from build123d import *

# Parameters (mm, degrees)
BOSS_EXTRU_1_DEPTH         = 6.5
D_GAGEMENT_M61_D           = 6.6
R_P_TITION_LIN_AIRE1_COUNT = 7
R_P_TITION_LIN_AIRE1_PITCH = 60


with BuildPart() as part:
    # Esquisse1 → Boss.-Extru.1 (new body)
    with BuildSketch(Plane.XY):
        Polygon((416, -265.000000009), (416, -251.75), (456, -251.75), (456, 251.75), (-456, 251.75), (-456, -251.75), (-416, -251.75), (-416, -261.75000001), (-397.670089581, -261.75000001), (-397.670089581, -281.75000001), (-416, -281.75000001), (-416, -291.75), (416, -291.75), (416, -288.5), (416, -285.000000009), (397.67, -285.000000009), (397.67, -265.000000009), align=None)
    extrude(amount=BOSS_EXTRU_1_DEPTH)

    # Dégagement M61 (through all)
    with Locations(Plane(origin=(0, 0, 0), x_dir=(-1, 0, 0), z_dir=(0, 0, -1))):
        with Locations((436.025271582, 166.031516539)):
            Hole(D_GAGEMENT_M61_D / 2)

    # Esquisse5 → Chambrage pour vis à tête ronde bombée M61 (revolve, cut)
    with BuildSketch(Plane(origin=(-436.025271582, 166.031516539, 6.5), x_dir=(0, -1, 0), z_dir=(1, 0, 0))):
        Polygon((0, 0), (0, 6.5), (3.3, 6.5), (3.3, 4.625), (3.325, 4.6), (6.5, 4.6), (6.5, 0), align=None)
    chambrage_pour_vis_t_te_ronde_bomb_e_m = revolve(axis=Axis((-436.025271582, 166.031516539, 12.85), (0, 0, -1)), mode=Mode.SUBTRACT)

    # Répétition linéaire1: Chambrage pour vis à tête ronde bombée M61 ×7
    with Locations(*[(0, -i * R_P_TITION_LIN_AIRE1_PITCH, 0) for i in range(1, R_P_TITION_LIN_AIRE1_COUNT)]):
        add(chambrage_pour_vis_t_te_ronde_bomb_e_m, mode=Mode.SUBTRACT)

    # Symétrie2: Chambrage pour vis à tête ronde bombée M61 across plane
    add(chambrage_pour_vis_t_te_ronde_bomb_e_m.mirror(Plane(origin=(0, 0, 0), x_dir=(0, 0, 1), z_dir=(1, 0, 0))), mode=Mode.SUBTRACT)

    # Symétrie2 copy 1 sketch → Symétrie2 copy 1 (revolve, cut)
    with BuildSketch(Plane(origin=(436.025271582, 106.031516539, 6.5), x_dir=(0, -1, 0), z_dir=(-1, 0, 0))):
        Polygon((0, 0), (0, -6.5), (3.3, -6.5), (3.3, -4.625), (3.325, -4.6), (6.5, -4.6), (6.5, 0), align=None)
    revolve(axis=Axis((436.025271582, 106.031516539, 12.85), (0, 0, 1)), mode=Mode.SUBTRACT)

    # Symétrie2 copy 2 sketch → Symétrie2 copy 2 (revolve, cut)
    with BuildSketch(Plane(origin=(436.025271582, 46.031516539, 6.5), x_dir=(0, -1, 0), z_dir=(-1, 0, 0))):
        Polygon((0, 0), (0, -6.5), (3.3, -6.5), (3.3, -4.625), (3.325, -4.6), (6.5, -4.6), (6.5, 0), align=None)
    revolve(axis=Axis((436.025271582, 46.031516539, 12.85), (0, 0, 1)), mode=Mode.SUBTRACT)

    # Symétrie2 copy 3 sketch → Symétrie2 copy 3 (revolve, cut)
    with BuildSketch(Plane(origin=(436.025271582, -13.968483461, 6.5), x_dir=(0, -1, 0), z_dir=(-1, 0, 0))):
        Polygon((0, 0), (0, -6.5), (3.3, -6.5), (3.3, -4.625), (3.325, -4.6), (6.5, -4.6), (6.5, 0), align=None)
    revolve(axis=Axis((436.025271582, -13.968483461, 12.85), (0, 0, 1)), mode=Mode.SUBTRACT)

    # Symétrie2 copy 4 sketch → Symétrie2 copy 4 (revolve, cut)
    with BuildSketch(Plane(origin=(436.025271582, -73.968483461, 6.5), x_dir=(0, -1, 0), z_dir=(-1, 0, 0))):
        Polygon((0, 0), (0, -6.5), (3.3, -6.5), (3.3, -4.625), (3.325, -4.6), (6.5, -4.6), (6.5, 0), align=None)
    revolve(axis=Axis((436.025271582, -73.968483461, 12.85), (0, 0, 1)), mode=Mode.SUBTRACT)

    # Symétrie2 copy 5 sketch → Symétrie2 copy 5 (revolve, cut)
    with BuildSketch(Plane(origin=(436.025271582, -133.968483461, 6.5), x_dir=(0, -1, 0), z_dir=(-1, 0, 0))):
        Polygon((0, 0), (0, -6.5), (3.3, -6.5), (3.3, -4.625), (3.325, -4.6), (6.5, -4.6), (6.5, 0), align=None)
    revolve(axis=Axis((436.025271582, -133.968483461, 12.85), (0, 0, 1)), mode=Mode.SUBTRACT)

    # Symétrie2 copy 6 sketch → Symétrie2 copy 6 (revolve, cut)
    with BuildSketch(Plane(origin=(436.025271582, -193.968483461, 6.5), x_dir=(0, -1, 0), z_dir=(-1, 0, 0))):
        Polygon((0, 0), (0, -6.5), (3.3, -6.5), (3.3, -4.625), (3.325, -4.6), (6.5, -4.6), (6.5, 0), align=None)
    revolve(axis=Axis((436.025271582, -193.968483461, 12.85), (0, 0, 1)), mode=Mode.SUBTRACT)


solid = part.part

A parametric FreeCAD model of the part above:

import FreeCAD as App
import Part
import Sketcher
from FreeCAD import Vector
Q = App.Units.Quantity

doc = App.newDocument("Part")
body = doc.addObject("PartDesign::Body", "Body")

# Sketch on XY plane
sketch1 = body.newObject("Sketcher::SketchObject", "Sketch")
sketch1.AttachmentSupport = (doc.getObject("XY_Plane"), [""])
sketch1.MapMode = "FlatFace"
sketch1.addGeometry([
    Part.LineSegment(Vector(416, -265, 0), Vector(416, -252, 0)),  # 0
    Part.LineSegment(Vector(416, -252, 0), Vector(456, -252, 0)),  # 1
    Part.LineSegment(Vector(456, -252, 0), Vector(456, 252, 0)),  # 2
    Part.LineSegment(Vector(456, 252, 0), Vector(-456, 252, 0)),  # 3
    Part.LineSegment(Vector(-456, 252, 0), Vector(-456, -252, 0)),  # 4
    Part.LineSegment(Vector(-456, -252, 0), Vector(-416, -252, 0)),  # 5
    Part.LineSegment(Vector(-416, -252, 0), Vector(-416, -262, 0)),  # 6
    Part.LineSegment(Vector(-416, -262, 0), Vector(-398, -262, 0)),  # 7
    Part.LineSegment(Vector(-398, -262, 0), Vector(-398, -282, 0)),  # 8
    Part.LineSegment(Vector(-398, -282, 0), Vector(-416, -282, 0)),  # 9
    Part.LineSegment(Vector(-416, -282, 0), Vector(-416, -292, 0)),  # 10
    Part.LineSegment(Vector(-416, -292, 0), Vector(416, -292, 0)),  # 11
    Part.LineSegment(Vector(416, -292, 0), Vector(416, -285, 0)),  # 12
    Part.LineSegment(Vector(416, -285, 0), Vector(398, -285, 0)),  # 13
    Part.LineSegment(Vector(398, -285, 0), Vector(398, -265, 0)),  # 14
    Part.LineSegment(Vector(398, -265, 0), Vector(416, -265, 0)),  # 15
], False)
sketch1.addConstraint([
    Sketcher.Constraint("Coincident", 0, 2, 1, 1),
    Sketcher.Constraint("Coincident", 1, 2, 2, 1),
    Sketcher.Constraint("Coincident", 2, 2, 3, 1),
    Sketcher.Constraint("Coincident", 3, 2, 4, 1),
    Sketcher.Constraint("Coincident", 4, 2, 5, 1),
    Sketcher.Constraint("Coincident", 5, 2, 6, 1),
    Sketcher.Constraint("Coincident", 6, 2, 7, 1),
    Sketcher.Constraint("Coincident", 7, 2, 8, 1),
    Sketcher.Constraint("Coincident", 8, 2, 9, 1),
    Sketcher.Constraint("Coincident", 9, 2, 10, 1),
    Sketcher.Constraint("Coincident", 10, 2, 11, 1),
    Sketcher.Constraint("Coincident", 11, 2, 12, 1),
    Sketcher.Constraint("Coincident", 12, 2, 13, 1),
    Sketcher.Constraint("Coincident", 13, 2, 14, 1),
    Sketcher.Constraint("Coincident", 14, 2, 15, 1),
    Sketcher.Constraint("Coincident", 15, 2, 0, 1),
    Sketcher.Constraint("Vertical", 0),
    Sketcher.Constraint("Horizontal", 1),
    Sketcher.Constraint("Vertical", 2),
    Sketcher.Constraint("Horizontal", 3),
    Sketcher.Constraint("Vertical", 4),
    Sketcher.Constraint("Horizontal", 5),
    Sketcher.Constraint("Vertical", 6),
    Sketcher.Constraint("Horizontal", 7),
    Sketcher.Constraint("Vertical", 8),
    Sketcher.Constraint("Horizontal", 9),
    Sketcher.Constraint("Vertical", 10),
    Sketcher.Constraint("Horizontal", 11),
    Sketcher.Constraint("Vertical", 12),
    Sketcher.Constraint("Horizontal", 13),
    Sketcher.Constraint("Vertical", 14),
    Sketcher.Constraint("Horizontal", 15),
    Sketcher.Constraint("Symmetric", 1, 2, 3, 2, -1, 1),
    Sketcher.Constraint("Symmetric", 0, 2, 5, 2, -2),
    Sketcher.Constraint("Vertical", 6, 2, 9, 2),
    Sketcher.Constraint("Vertical", 0, 2, 11, 2),
    Sketcher.Constraint("Equal", 6, 10),
    Sketcher.Constraint("Equal", 8, 14),
    Sketcher.Constraint("DistanceX", 1, 1, 1, 2, 40.0),
    Sketcher.Constraint("DistanceX", 3, 2, 3, 1, 912.0),
    Sketcher.Constraint("DistanceY", 6, 2, 6, 1, 10.0),
    Sketcher.Constraint("DistanceY", 8, 2, 8, 1, 20.0),
    Sketcher.Constraint("DistanceY", 2, 1, 2, 2, 503.5),
    Sketcher.Constraint("DistanceY", 12, 2, -1, 1, 285.0),
    Sketcher.Constraint("DistanceX", 13, 2, 13, 1, 18.33),
    Sketcher.Constraint("DistanceX", 7, 1, 7, 2, 18.32991),
])
pad1 = body.newObject("PartDesign::Pad", "Pad")
pad1.Profile = sketch1
pad1.Length = 6.5

# Sketch on XY plane
sketch2 = body.newObject("Sketcher::SketchObject", "Sketch001")
sketch2.AttachmentSupport = (doc.getObject("XY_Plane"), [""])
sketch2.MapMode = "FlatFace"
sketch2.addGeometry(Part.Circle(Vector(-436, 166, 0), Vector(0, 0, 1), 3.3), False)
sketch2.addConstraint([
    Sketcher.Constraint("Diameter", 0, 6.6),
    Sketcher.Constraint("DistanceX", 0, 3, -1, 1, 436.025272),
    Sketcher.Constraint("DistanceY", -1, 1, 0, 3, 166.031517),
])
doc.recompute()
hole = body.newObject("PartDesign::Hole", "Hole")
hole.Profile = sketch2
hole.ThreadType = "None"
hole.Diameter = 6.6
hole.DepthType = "ThroughAll"
hole.Reversed = True

# Sketch on YZ plane
sketch3 = body.newObject("Sketcher::SketchObject", "Sketch002")
sketch3.AttachmentSupport = (doc.getObject("YZ_Plane"), [""])
sketch3.MapMode = "FlatFace"
sketch3.AttachmentOffset = App.Placement(Vector(0, 0, -436.025272), App.Rotation())
sketch3.addGeometry([
    Part.LineSegment(Vector(166.031517, 0, 0), Vector(166.031517, 6.5, 0)),  # 0
    Part.LineSegment(Vector(166.031517, 6.5, 0), Vector(159.531517, 6.5, 0)),  # 1
    Part.LineSegment(Vector(159.531517, 6.5, 0), Vector(159.531517, 1.9, 0)),  # 2
    Part.LineSegment(Vector(159.531517, 1.9, 0), Vector(162.706517, 1.9, 0)),  # 3
    Part.LineSegment(Vector(162.706517, 1.9, 0), Vector(162.731517, 1.875, 0)),  # 4
    Part.LineSegment(Vector(162.731517, 1.875, 0), Vector(162.731517, 0, 0)),  # 5
    Part.LineSegment(Vector(162.731517, 0, 0), Vector(166.031517, 0, 0)),  # 6
], False)
sketch3.addGeometry(Part.LineSegment(Vector(166.031517, 6.5, 0), Vector(166.031517, 0, 0)), True)  # axis
sketch3.addConstraint([
    Sketcher.Constraint("Coincident", 0, 2, 1, 1),
    Sketcher.Constraint("Coincident", 1, 2, 2, 1),
    Sketcher.Constraint("Coincident", 2, 2, 3, 1),
    Sketcher.Constraint("Coincident", 3, 2, 4, 1),
    Sketcher.Constraint("Coincident", 4, 2, 5, 1),
    Sketcher.Constraint("Coincident", 5, 2, 6, 1),
    Sketcher.Constraint("Coincident", 6, 2, 0, 1),
    Sketcher.Constraint("Vertical", 0),
    Sketcher.Constraint("Horizontal", 1),
    Sketcher.Constraint("Vertical", 2),
    Sketcher.Constraint("Horizontal", 3),
    Sketcher.Constraint("Vertical", 5),
    Sketcher.Constraint("Horizontal", 6),
    Sketcher.Constraint("Vertical", 7),
    Sketcher.Constraint("Coincident", 7, 1, 0, 2),
    Sketcher.Constraint("PointOnObject", 5, 2, -1),
    Sketcher.Constraint("PointOnObject", 7, 2, -1),
    Sketcher.Constraint("Equal", 1, 0),
    Sketcher.Constraint("Angle", 4, Q("-45 deg")),
    Sketcher.Constraint("DistanceX", 1, 2, 1, 1, 6.5),
    Sketcher.Constraint("DistanceX", 6, 1, 6, 2, 3.3),
    Sketcher.Constraint("DistanceY", 2, 2, 2, 1, 4.6),
    Sketcher.Constraint("DistanceX", 3, 1, 3, 2, 3.175),
    Sketcher.Constraint("DistanceX", -1, 1, 0, 2, 166.031517),
])
groove = body.newObject("PartDesign::Groove", "Groove")
groove.Profile = sketch3
groove.ReferenceAxis = (sketch3, ["Axis0"])
groove.Angle = 360
doc.recompute()

linearpattern = body.newObject("PartDesign::LinearPattern", "LinearPattern")
linearpattern.Originals = [groove]
linearpattern.Direction = (doc.getObject("Y_Axis"), [""])
linearpattern.Mode = "offset"
linearpattern.Offset = 60
linearpattern.Occurrences = 7
linearpattern.Reversed = True
body.Tip = linearpattern
doc.recompute()

mirrored = body.newObject("PartDesign::Mirrored", "Mirrored")
mirrored.Originals = [groove]
mirrored.MirrorPlane = (doc.getObject("YZ_Plane"), [""])
body.Tip = mirrored

# Sketch on YZ plane
sketch4 = body.newObject("Sketcher::SketchObject", "Sketch003")
sketch4.AttachmentSupport = (doc.getObject("YZ_Plane"), [""])
sketch4.MapMode = "FlatFace"
sketch4.AttachmentOffset = App.Placement(Vector(0, 0, 436.025272), App.Rotation())
sketch4.addGeometry([
    Part.LineSegment(Vector(106.032, 6.5, 0), Vector(106.032, 0, 0)),  # 0
    Part.LineSegment(Vector(106.032, 0, 0), Vector(102.732, 0, 0)),  # 1
    Part.LineSegment(Vector(102.732, 0, 0), Vector(102.732, 1.875, 0)),  # 2
    Part.LineSegment(Vector(102.732, 1.875, 0), Vector(102.707, 1.9, 0)),  # 3
    Part.LineSegment(Vector(102.707, 1.9, 0), Vector(99.532, 1.9, 0)),  # 4
    Part.LineSegment(Vector(99.532, 1.9, 0), Vector(99.532, 6.5, 0)),  # 5
    Part.LineSegment(Vector(99.532, 6.5, 0), Vector(106.032, 6.5, 0)),  # 6
], False)
sketch4.addGeometry(Part.LineSegment(Vector(106.032, 0, 0), Vector(106.032, 6.5, 0)), True)  # axis
sketch4.addConstraint([
    Sketcher.Constraint("Coincident", 0, 2, 1, 1),
    Sketcher.Constraint("Coincident", 1, 2, 2, 1),
    Sketcher.Constraint("Coincident", 2, 2, 3, 1),
    Sketcher.Constraint("Coincident", 3, 2, 4, 1),
    Sketcher.Constraint("Coincident", 4, 2, 5, 1),
    Sketcher.Constraint("Coincident", 5, 2, 6, 1),
    Sketcher.Constraint("Coincident", 6, 2, 0, 1),
    Sketcher.Constraint("Vertical", 0),
    Sketcher.Constraint("Horizontal", 1),
    Sketcher.Constraint("Vertical", 2),
    Sketcher.Constraint("Horizontal", 4),
    Sketcher.Constraint("Vertical", 5),
    Sketcher.Constraint("Horizontal", 6),
    Sketcher.Constraint("Vertical", 7),
    Sketcher.Constraint("Coincident", 7, 1, 0, 2),
    Sketcher.Constraint("PointOnObject", 0, 2, -1),
    Sketcher.Constraint("Horizontal", 5, 2, 7, 2),
    Sketcher.Constraint("Equal", 6, 0),
    Sketcher.Constraint("Angle", 3, Q("135 deg")),
    Sketcher.Constraint("DistanceX", 1, 2, 1, 1, 3.3),
    Sketcher.Constraint("DistanceX", 6, 1, 6, 2, 6.5),
    Sketcher.Constraint("DistanceY", 5, 1, 5, 2, 4.6),
    Sketcher.Constraint("DistanceX", 4, 2, 4, 1, 3.175),
    Sketcher.Constraint("DistanceX", -1, 1, 0, 2, 106.031517),
])
groove2 = body.newObject("PartDesign::Groove", "Groove001")
groove2.Profile = sketch4
groove2.ReferenceAxis = (sketch4, ["Axis0"])
groove2.Angle = 360

# Sketch on YZ plane
sketch5 = body.newObject("Sketcher::SketchObject", "Sketch004")
sketch5.AttachmentSupport = (doc.getObject("YZ_Plane"), [""])
sketch5.MapMode = "FlatFace"
sketch5.AttachmentOffset = App.Placement(Vector(0, 0, 436.025272), App.Rotation())
sketch5.addGeometry([
    Part.LineSegment(Vector(46.032, 6.5, 0), Vector(46.032, 0, 0)),  # 0
    Part.LineSegment(Vector(46.032, 0, 0), Vector(42.732, 0, 0)),  # 1
    Part.LineSegment(Vector(42.732, 0, 0), Vector(42.732, 1.875, 0)),  # 2
    Part.LineSegment(Vector(42.732, 1.875, 0), Vector(42.707, 1.9, 0)),  # 3
    Part.LineSegment(Vector(42.707, 1.9, 0), Vector(39.532, 1.9, 0)),  # 4
    Part.LineSegment(Vector(39.532, 1.9, 0), Vector(39.532, 6.5, 0)),  # 5
    Part.LineSegment(Vector(39.532, 6.5, 0), Vector(46.032, 6.5, 0)),  # 6
], False)
sketch5.addGeometry(Part.LineSegment(Vector(46.032, 0, 0), Vector(46.032, 6.5, 0)), True)  # axis
sketch5.addConstraint([
    Sketcher.Constraint("Coincident", 0, 2, 1, 1),
    Sketcher.Constraint("Coincident", 1, 2, 2, 1),
    Sketcher.Constraint("Coincident", 2, 2, 3, 1),
    Sketcher.Constraint("Coincident", 3, 2, 4, 1),
    Sketcher.Constraint("Coincident", 4, 2, 5, 1),
    Sketcher.Constraint("Coincident", 5, 2, 6, 1),
    Sketcher.Constraint("Coincident", 6, 2, 0, 1),
    Sketcher.Constraint("Vertical", 0),
    Sketcher.Constraint("Horizontal", 1),
    Sketcher.Constraint("Vertical", 2),
    Sketcher.Constraint("Horizontal", 4),
    Sketcher.Constraint("Vertical", 5),
    Sketcher.Constraint("Horizontal", 6),
    Sketcher.Constraint("Vertical", 7),
    Sketcher.Constraint("Coincident", 7, 1, 0, 2),
    Sketcher.Constraint("PointOnObject", 0, 2, -1),
    Sketcher.Constraint("Horizontal", 5, 2, 7, 2),
    Sketcher.Constraint("Equal", 6, 0),
    Sketcher.Constraint("Angle", 3, Q("135 deg")),
    Sketcher.Constraint("DistanceX", 1, 2, 1, 1, 3.3),
    Sketcher.Constraint("DistanceX", 6, 1, 6, 2, 6.5),
    Sketcher.Constraint("DistanceY", 5, 1, 5, 2, 4.6),
    Sketcher.Constraint("DistanceX", 4, 2, 4, 1, 3.175),
    Sketcher.Constraint("DistanceX", -1, 1, 0, 2, 46.031517),
])
groove3 = body.newObject("PartDesign::Groove", "Groove002")
groove3.Profile = sketch5
groove3.ReferenceAxis = (sketch5, ["Axis0"])
groove3.Angle = 360

# Sketch on YZ plane
sketch6 = body.newObject("Sketcher::SketchObject", "Sketch005")
sketch6.AttachmentSupport = (doc.getObject("YZ_Plane"), [""])
sketch6.MapMode = "FlatFace"
sketch6.AttachmentOffset = App.Placement(Vector(0, 0, 436.025272), App.Rotation())
sketch6.addGeometry([
    Part.LineSegment(Vector(-13.968, 6.5, 0), Vector(-13.968, 0, 0)),  # 0
    Part.LineSegment(Vector(-13.968, 0, 0), Vector(-17.268, 0, 0)),  # 1
    Part.LineSegment(Vector(-17.268, 0, 0), Vector(-17.268, 1.875, 0)),  # 2
    Part.LineSegment(Vector(-17.268, 1.875, 0), Vector(-17.293, 1.9, 0)),  # 3
    Part.LineSegment(Vector(-17.293, 1.9, 0), Vector(-20.468, 1.9, 0)),  # 4
    Part.LineSegment(Vector(-20.468, 1.9, 0), Vector(-20.468, 6.5, 0)),  # 5
    Part.LineSegment(Vector(-20.468, 6.5, 0), Vector(-13.968, 6.5, 0)),  # 6
], False)
sketch6.addGeometry(Part.LineSegment(Vector(-13.968, 0, 0), Vector(-13.968, 6.5, 0)), True)  # axis
sketch6.addConstraint([
    Sketcher.Constraint("Coincident", 0, 2, 1, 1),
    Sketcher.Constraint("Coincident", 1, 2, 2, 1),
    Sketcher.Constraint("Coincident", 2, 2, 3, 1),
    Sketcher.Constraint("Coincident", 3, 2, 4, 1),
    Sketcher.Constraint("Coincident", 4, 2, 5, 1),
    Sketcher.Constraint("Coincident", 5, 2, 6, 1),
    Sketcher.Constraint("Coincident", 6, 2, 0, 1),
    Sketcher.Constraint("Vertical", 0),
    Sketcher.Constraint("Horizontal", 1),
    Sketcher.Constraint("Vertical", 2),
    Sketcher.Constraint("Horizontal", 4),
    Sketcher.Constraint("Vertical", 5),
    Sketcher.Constraint("Horizontal", 6),
    Sketcher.Constraint("Vertical", 7),
    Sketcher.Constraint("Coincident", 7, 1, 0, 2),
    Sketcher.Constraint("PointOnObject", 0, 2, -1),
    Sketcher.Constraint("Horizontal", 5, 2, 7, 2),
    Sketcher.Constraint("Equal", 6, 0),
    Sketcher.Constraint("Angle", 3, Q("135 deg")),
    Sketcher.Constraint("DistanceX", 1, 2, 1, 1, 3.3),
    Sketcher.Constraint("DistanceX", 6, 1, 6, 2, 6.5),
    Sketcher.Constraint("DistanceY", 5, 1, 5, 2, 4.6),
    Sketcher.Constraint("DistanceX", 4, 2, 4, 1, 3.175),
    Sketcher.Constraint("DistanceX", 0, 2, -1, 1, 13.968483),
])
groove4 = body.newObject("PartDesign::Groove", "Groove003")
groove4.Profile = sketch6
groove4.ReferenceAxis = (sketch6, ["Axis0"])
groove4.Angle = 360

# Sketch on YZ plane
sketch7 = body.newObject("Sketcher::SketchObject", "Sketch006")
sketch7.AttachmentSupport = (doc.getObject("YZ_Plane"), [""])
sketch7.MapMode = "FlatFace"
sketch7.AttachmentOffset = App.Placement(Vector(0, 0, 436.025272), App.Rotation())
sketch7.addGeometry([
    Part.LineSegment(Vector(-73.968, 6.5, 0), Vector(-73.968, 0, 0)),  # 0
    Part.LineSegment(Vector(-73.968, 0, 0), Vector(-77.268, 0, 0)),  # 1
    Part.LineSegment(Vector(-77.268, 0, 0), Vector(-77.268, 1.875, 0)),  # 2
    Part.LineSegment(Vector(-77.268, 1.875, 0), Vector(-77.293, 1.9, 0)),  # 3
    Part.LineSegment(Vector(-77.293, 1.9, 0), Vector(-80.468, 1.9, 0)),  # 4
    Part.LineSegment(Vector(-80.468, 1.9, 0), Vector(-80.468, 6.5, 0)),  # 5
    Part.LineSegment(Vector(-80.468, 6.5, 0), Vector(-73.968, 6.5, 0)),  # 6
], False)
sketch7.addGeometry(Part.LineSegment(Vector(-73.968, 0, 0), Vector(-73.968, 6.5, 0)), True)  # axis
sketch7.addConstraint([
    Sketcher.Constraint("Coincident", 0, 2, 1, 1),
    Sketcher.Constraint("Coincident", 1, 2, 2, 1),
    Sketcher.Constraint("Coincident", 2, 2, 3, 1),
    Sketcher.Constraint("Coincident", 3, 2, 4, 1),
    Sketcher.Constraint("Coincident", 4, 2, 5, 1),
    Sketcher.Constraint("Coincident", 5, 2, 6, 1),
    Sketcher.Constraint("Coincident", 6, 2, 0, 1),
    Sketcher.Constraint("Vertical", 0),
    Sketcher.Constraint("Horizontal", 1),
    Sketcher.Constraint("Vertical", 2),
    Sketcher.Constraint("Horizontal", 4),
    Sketcher.Constraint("Vertical", 5),
    Sketcher.Constraint("Horizontal", 6),
    Sketcher.Constraint("Vertical", 7),
    Sketcher.Constraint("Coincident", 7, 1, 0, 2),
    Sketcher.Constraint("PointOnObject", 0, 2, -1),
    Sketcher.Constraint("Horizontal", 5, 2, 7, 2),
    Sketcher.Constraint("Equal", 6, 0),
    Sketcher.Constraint("Angle", 3, Q("135 deg")),
    Sketcher.Constraint("DistanceX", 1, 2, 1, 1, 3.3),
    Sketcher.Constraint("DistanceX", 6, 1, 6, 2, 6.5),
    Sketcher.Constraint("DistanceY", 5, 1, 5, 2, 4.6),
    Sketcher.Constraint("DistanceX", 4, 2, 4, 1, 3.175),
    Sketcher.Constraint("DistanceX", 0, 2, -1, 1, 73.968483),
])
groove5 = body.newObject("PartDesign::Groove", "Groove004")
groove5.Profile = sketch7
groove5.ReferenceAxis = (sketch7, ["Axis0"])
groove5.Angle = 360

# Sketch on YZ plane
sketch8 = body.newObject("Sketcher::SketchObject", "Sketch007")
sketch8.AttachmentSupport = (doc.getObject("YZ_Plane"), [""])
sketch8.MapMode = "FlatFace"
sketch8.AttachmentOffset = App.Placement(Vector(0, 0, 436.025272), App.Rotation())
sketch8.addGeometry([
    Part.LineSegment(Vector(-133.968483, 6.5, 0), Vector(-133.968483, 0, 0)),  # 0
    Part.LineSegment(Vector(-133.968483, 0, 0), Vector(-137.268483, 0, 0)),  # 1
    Part.LineSegment(Vector(-137.268483, 0, 0), Vector(-137.268483, 1.875, 0)),  # 2
    Part.LineSegment(Vector(-137.268483, 1.875, 0), Vector(-137.293483, 1.9, 0)),  # 3
    Part.LineSegment(Vector(-137.293483, 1.9, 0), Vector(-140.468483, 1.9, 0)),  # 4
    Part.LineSegment(Vector(-140.468483, 1.9, 0), Vector(-140.468483, 6.5, 0)),  # 5
    Part.LineSegment(Vector(-140.468483, 6.5, 0), Vector(-133.968483, 6.5, 0)),  # 6
], False)
sketch8.addGeometry(Part.LineSegment(Vector(-133.968483, 0, 0), Vector(-133.968483, 6.5, 0)), True)  # axis
sketch8.addConstraint([
    Sketcher.Constraint("Coincident", 0, 2, 1, 1),
    Sketcher.Constraint("Coincident", 1, 2, 2, 1),
    Sketcher.Constraint("Coincident", 2, 2, 3, 1),
    Sketcher.Constraint("Coincident", 3, 2, 4, 1),
    Sketcher.Constraint("Coincident", 4, 2, 5, 1),
    Sketcher.Constraint("Coincident", 5, 2, 6, 1),
    Sketcher.Constraint("Coincident", 6, 2, 0, 1),
    Sketcher.Constraint("Vertical", 0),
    Sketcher.Constraint("Horizontal", 1),
    Sketcher.Constraint("Vertical", 2),
    Sketcher.Constraint("Horizontal", 4),
    Sketcher.Constraint("Vertical", 5),
    Sketcher.Constraint("Horizontal", 6),
    Sketcher.Constraint("Vertical", 7),
    Sketcher.Constraint("Coincident", 7, 1, 0, 2),
    Sketcher.Constraint("PointOnObject", 0, 2, -1),
    Sketcher.Constraint("Horizontal", 5, 2, 7, 2),
    Sketcher.Constraint("Equal", 6, 0),
    Sketcher.Constraint("Angle", 3, Q("135 deg")),
    Sketcher.Constraint("DistanceX", 1, 2, 1, 1, 3.3),
    Sketcher.Constraint("DistanceX", 6, 1, 6, 2, 6.5),
    Sketcher.Constraint("DistanceY", 5, 1, 5, 2, 4.6),
    Sketcher.Constraint("DistanceX", 4, 2, 4, 1, 3.175),
    Sketcher.Constraint("DistanceX", 0, 2, -1, 1, 133.968483),
])
groove6 = body.newObject("PartDesign::Groove", "Groove005")
groove6.Profile = sketch8
groove6.ReferenceAxis = (sketch8, ["Axis0"])
groove6.Angle = 360

# Sketch on YZ plane
sketch9 = body.newObject("Sketcher::SketchObject", "Sketch008")
sketch9.AttachmentSupport = (doc.getObject("YZ_Plane"), [""])
sketch9.MapMode = "FlatFace"
sketch9.AttachmentOffset = App.Placement(Vector(0, 0, 436.025272), App.Rotation())
sketch9.addGeometry([
    Part.LineSegment(Vector(-193.968483, 6.5, 0), Vector(-193.968483, 0, 0)),  # 0
    Part.LineSegment(Vector(-193.968483, 0, 0), Vector(-197.268483, 0, 0)),  # 1
    Part.LineSegment(Vector(-197.268483, 0, 0), Vector(-197.268483, 1.875, 0)),  # 2
    Part.LineSegment(Vector(-197.268483, 1.875, 0), Vector(-197.293483, 1.9, 0)),  # 3
    Part.LineSegment(Vector(-197.293483, 1.9, 0), Vector(-200.468483, 1.9, 0)),  # 4
    Part.LineSegment(Vector(-200.468483, 1.9, 0), Vector(-200.468483, 6.5, 0)),  # 5
    Part.LineSegment(Vector(-200.468483, 6.5, 0), Vector(-193.968483, 6.5, 0)),  # 6
], False)
sketch9.addGeometry(Part.LineSegment(Vector(-193.968483, 0, 0), Vector(-193.968483, 6.5, 0)), True)  # axis
sketch9.addConstraint([
    Sketcher.Constraint("Coincident", 0, 2, 1, 1),
    Sketcher.Constraint("Coincident", 1, 2, 2, 1),
    Sketcher.Constraint("Coincident", 2, 2, 3, 1),
    Sketcher.Constraint("Coincident", 3, 2, 4, 1),
    Sketcher.Constraint("Coincident", 4, 2, 5, 1),
    Sketcher.Constraint("Coincident", 5, 2, 6, 1),
    Sketcher.Constraint("Coincident", 6, 2, 0, 1),
    Sketcher.Constraint("Vertical", 0),
    Sketcher.Constraint("Horizontal", 1),
    Sketcher.Constraint("Vertical", 2),
    Sketcher.Constraint("Horizontal", 4),
    Sketcher.Constraint("Vertical", 5),
    Sketcher.Constraint("Horizontal", 6),
    Sketcher.Constraint("Vertical", 7),
    Sketcher.Constraint("Coincident", 7, 1, 0, 2),
    Sketcher.Constraint("PointOnObject", 0, 2, -1),
    Sketcher.Constraint("Horizontal", 5, 2, 7, 2),
    Sketcher.Constraint("Equal", 6, 0),
    Sketcher.Constraint("Angle", 3, Q("135 deg")),
    Sketcher.Constraint("DistanceX", 1, 2, 1, 1, 3.3),
    Sketcher.Constraint("DistanceX", 6, 1, 6, 2, 6.5),
    Sketcher.Constraint("DistanceY", 5, 1, 5, 2, 4.6),
    Sketcher.Constraint("DistanceX", 4, 2, 4, 1, 3.175),
    Sketcher.Constraint("DistanceX", 0, 2, -1, 1, 193.968483),
])
groove7 = body.newObject("PartDesign::Groove", "Groove006")
groove7.Profile = sketch9
groove7.ReferenceAxis = (sketch9, ["Axis0"])
groove7.Angle = 360

doc.recompute()
